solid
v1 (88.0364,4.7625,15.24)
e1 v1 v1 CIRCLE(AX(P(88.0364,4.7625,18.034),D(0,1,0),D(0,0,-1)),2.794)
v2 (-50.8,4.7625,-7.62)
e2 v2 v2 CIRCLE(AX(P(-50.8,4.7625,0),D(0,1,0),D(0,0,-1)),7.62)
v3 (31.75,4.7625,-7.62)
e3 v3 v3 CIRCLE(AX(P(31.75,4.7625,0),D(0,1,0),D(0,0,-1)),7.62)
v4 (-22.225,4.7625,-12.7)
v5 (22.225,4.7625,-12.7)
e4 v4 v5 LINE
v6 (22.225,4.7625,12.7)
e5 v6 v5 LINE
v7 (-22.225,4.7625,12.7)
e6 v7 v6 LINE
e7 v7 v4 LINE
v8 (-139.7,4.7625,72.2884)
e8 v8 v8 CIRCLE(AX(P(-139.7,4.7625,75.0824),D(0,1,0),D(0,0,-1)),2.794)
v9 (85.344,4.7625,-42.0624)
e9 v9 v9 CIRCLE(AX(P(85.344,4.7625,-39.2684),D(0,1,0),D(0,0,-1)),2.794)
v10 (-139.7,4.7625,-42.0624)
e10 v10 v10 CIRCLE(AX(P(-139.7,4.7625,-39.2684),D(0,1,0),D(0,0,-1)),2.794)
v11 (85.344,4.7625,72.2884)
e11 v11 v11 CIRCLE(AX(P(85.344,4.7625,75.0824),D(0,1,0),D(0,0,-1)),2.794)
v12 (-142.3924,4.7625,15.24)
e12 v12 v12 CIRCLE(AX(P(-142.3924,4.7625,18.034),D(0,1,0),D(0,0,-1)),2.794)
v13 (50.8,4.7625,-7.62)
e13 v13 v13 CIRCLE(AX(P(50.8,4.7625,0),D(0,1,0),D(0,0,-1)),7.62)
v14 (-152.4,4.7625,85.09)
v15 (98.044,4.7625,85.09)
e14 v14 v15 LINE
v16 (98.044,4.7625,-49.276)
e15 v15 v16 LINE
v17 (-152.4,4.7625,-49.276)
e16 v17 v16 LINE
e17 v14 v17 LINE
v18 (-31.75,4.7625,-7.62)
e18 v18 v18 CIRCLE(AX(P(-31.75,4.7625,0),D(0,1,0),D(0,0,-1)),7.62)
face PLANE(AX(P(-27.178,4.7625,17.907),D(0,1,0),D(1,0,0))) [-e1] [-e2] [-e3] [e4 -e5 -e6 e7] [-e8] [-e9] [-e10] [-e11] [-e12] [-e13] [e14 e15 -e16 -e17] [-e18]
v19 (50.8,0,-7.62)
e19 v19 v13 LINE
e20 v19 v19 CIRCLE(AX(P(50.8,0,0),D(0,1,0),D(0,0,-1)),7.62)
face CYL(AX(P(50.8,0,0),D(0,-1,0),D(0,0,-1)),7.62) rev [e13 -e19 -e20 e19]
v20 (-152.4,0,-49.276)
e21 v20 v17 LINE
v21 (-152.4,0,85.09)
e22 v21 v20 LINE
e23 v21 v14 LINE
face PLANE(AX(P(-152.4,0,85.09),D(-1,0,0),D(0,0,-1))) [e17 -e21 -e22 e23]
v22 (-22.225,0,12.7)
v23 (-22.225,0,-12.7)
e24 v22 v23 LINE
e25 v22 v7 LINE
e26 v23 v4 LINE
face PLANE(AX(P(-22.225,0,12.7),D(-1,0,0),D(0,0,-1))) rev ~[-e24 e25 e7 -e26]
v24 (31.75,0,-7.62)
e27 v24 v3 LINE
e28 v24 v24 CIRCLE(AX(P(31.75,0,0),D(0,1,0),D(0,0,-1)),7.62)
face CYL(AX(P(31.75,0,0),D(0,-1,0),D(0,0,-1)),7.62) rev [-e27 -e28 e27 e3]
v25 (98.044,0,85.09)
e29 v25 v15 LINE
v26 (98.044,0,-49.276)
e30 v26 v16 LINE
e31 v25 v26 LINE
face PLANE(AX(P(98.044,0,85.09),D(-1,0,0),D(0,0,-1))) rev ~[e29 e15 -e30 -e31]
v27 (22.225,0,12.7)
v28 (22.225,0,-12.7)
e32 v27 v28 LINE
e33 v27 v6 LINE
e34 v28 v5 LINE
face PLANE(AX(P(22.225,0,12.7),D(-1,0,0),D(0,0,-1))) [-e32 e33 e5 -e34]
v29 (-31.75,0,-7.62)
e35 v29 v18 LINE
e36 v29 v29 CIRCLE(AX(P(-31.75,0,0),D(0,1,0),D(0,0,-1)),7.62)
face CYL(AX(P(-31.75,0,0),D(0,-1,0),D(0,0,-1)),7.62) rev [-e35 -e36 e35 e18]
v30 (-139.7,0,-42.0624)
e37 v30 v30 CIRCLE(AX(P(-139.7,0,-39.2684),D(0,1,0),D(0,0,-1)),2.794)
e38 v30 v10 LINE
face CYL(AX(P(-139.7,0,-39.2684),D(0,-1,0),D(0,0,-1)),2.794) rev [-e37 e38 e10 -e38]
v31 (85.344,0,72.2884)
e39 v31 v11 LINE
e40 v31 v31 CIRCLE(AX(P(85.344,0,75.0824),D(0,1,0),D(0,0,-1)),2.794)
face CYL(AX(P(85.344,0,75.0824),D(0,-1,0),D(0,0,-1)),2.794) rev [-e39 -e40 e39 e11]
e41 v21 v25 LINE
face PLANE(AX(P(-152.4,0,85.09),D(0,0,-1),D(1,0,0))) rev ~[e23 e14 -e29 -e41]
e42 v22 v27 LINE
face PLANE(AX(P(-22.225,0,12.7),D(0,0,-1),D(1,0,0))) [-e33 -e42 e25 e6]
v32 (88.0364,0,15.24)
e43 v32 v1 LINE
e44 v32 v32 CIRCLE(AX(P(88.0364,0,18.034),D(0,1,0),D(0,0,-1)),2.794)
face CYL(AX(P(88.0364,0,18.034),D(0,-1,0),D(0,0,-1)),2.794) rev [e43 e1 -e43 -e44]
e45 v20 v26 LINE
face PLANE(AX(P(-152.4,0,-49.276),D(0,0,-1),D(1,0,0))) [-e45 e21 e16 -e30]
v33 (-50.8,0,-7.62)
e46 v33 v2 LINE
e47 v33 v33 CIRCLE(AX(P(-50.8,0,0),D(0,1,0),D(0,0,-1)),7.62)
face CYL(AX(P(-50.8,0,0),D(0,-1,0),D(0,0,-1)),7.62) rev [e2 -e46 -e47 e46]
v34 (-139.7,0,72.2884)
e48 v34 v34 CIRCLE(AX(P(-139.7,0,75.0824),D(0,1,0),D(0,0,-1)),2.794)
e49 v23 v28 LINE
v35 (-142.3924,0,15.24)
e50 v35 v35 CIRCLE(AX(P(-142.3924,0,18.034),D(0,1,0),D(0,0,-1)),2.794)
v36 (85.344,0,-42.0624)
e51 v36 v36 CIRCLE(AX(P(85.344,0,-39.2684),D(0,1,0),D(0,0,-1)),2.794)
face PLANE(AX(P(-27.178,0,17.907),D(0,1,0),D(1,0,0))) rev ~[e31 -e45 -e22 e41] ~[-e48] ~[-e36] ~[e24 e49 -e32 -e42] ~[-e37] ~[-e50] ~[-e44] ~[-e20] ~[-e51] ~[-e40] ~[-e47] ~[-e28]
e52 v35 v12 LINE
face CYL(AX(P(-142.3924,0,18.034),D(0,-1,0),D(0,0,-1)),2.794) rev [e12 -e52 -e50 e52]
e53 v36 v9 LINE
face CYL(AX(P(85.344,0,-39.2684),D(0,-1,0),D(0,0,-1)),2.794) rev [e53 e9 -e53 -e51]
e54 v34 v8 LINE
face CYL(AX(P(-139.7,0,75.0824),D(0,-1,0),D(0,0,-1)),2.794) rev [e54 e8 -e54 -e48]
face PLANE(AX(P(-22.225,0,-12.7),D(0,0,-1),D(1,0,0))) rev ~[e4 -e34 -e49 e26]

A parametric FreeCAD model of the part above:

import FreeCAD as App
import Part
import Sketcher

V = App.Vector
Q = App.Units.Quantity


def add_polygon(sketch, points):
    """Adds a closed chain of lines whose ends are joined by coincident constraints."""
    first, n = sketch.GeometryCount, len(points)
    for a, b in zip(points, points[1:] + points[:1]):
        sketch.addGeometry(Part.LineSegment(App.Vector(*a, 0), App.Vector(*b, 0)), False)
    for i in range(n):
        sketch.addConstraint(Sketcher.Constraint("Coincident", first + i, 2, first + (i + 1) % n, 1))

doc = App.newDocument("Part")
body = doc.addObject("PartDesign::Body", "Body")

# Sketch on XZ plane
sketch1 = body.newObject("Sketcher::SketchObject", "Sketch")
sketch1.AttachmentSupport = (doc.getObject("XZ_Plane"), [""])
sketch1.MapMode = "FlatFace"
add_polygon(sketch1, [(-152.4, -49.3), (-152.4, 85.1), (98, 85.1), (98, -49.3)])  # lines 0-3
sketch1.addGeometry(Part.Circle(V(-139.7, 75.1, 0), V(0, 0, 1), 2.8), False)  # 4
sketch1.addGeometry(Part.Circle(V(-142.4, 18, 0), V(0, 0, 1), 2.8), False)  # 5
sketch1.addGeometry(Part.Circle(V(85.3, 75.1, 0), V(0, 0, 1), 2.8), False)  # 6
sketch1.addGeometry(Part.Circle(V(88, 18, 0), V(0, 0, 1), 2.8), False)  # 7
sketch1.addGeometry(Part.Circle(V(-50.8, 0, 0), V(0, 0, 1), 7.6), False)  # 8
sketch1.addGeometry(Part.Circle(V(-31.8, 0, 0), V(0, 0, 1), 7.6), False)  # 9
sketch1.addGeometry(Part.Circle(V(-139.7, -39.3, 0), V(0, 0, 1), 2.8), False)  # 10
add_polygon(sketch1, [(22.2, 12.7), (-22.2, 12.7), (-22.2, -12.7), (22.2, -12.7)])  # lines 11-14
sketch1.addGeometry(Part.Circle(V(31.8, 0, 0), V(0, 0, 1), 7.6), False)  # 15
sketch1.addGeometry(Part.Circle(V(50.8, 0, 0), V(0, 0, 1), 7.6), False)  # 16
sketch1.addGeometry(Part.Circle(V(85.3, -39.3, 0), V(0, 0, 1), 2.8), False)  # 17
sketch1.addConstraint(Sketcher.Constraint("Vertical", 0))
sketch1.addConstraint(Sketcher.Constraint("Horizontal", 1))
sketch1.addConstraint(Sketcher.Constraint("Vertical", 2))
sketch1.addConstraint(Sketcher.Constraint("Horizontal", 3))
sketch1.addConstraint(Sketcher.Constraint("Horizontal", 11))
sketch1.addConstraint(Sketcher.Constraint("Vertical", 12))
sketch1.addConstraint(Sketcher.Constraint("Horizontal", 13))
sketch1.addConstraint(Sketcher.Constraint("Vertical", 14))
sketch1.addConstraint(Sketcher.Constraint("Equal", 4, 5))
sketch1.addConstraint(Sketcher.Constraint("Equal", 5, 6))
sketch1.addConstraint(Sketcher.Constraint("Equal", 6, 7))
sketch1.addConstraint(Sketcher.Constraint("Equal", 8, 9))
sketch1.addConstraint(Sketcher.Constraint("Equal", 7, 10))
sketch1.addConstraint(Sketcher.Constraint("Equal", 9, 15))
sketch1.addConstraint(Sketcher.Constraint("Equal", 15, 16))
sketch1.addConstraint(Sketcher.Constraint("Equal", 10, 17))
sketch1.addConstraint(Sketcher.Constraint("Symmetric", 9, 3, 15, 3, -1, 1))
sketch1.addConstraint(Sketcher.Constraint("Symmetric", 8, 3, 16, 3, -1, 1))
sketch1.addConstraint(Sketcher.Constraint("Symmetric", 11, 2, 13, 2, -1, 1))
sketch1.addConstraint(Sketcher.Constraint("PointOnObject", 8, 3, -1))
sketch1.addConstraint(Sketcher.Constraint("PointOnObject", 9, 3, -1))
sketch1.addConstraint(Sketcher.Constraint("Horizontal", 4, 3, 6, 3))
sketch1.addConstraint(Sketcher.Constraint("Horizontal", 5, 3, 7, 3))
sketch1.addConstraint(Sketcher.Constraint("Horizontal", 10, 3, 17, 3))
sketch1.addConstraint(Sketcher.Constraint("Vertical", 4, 3, 10, 3))
sketch1.addConstraint(Sketcher.Constraint("Vertical", 6, 3, 17, 3))
sketch1.addConstraint(Sketcher.Constraint("Diameter", 8, Q("0.6 in")))
sketch1.addConstraint(Sketcher.Constraint("Diameter", 4, Q("0.22 in")))
sketch1.addConstraint(Sketcher.Constraint("DistanceY", 12, 2, 12, 1, Q("1 in")))
sketch1.addConstraint(Sketcher.Constraint("DistanceX", 8, 3, -1, 1, Q("2 in")))
sketch1.addConstraint(Sketcher.Constraint("DistanceX", 0, 2, -1, 1, Q("6 in")))
sketch1.addConstraint(Sketcher.Constraint("DistanceX", 1, 1, 1, 2, Q("9.86 in")))
sketch1.addConstraint(Sketcher.Constraint("DistanceX", 11, 2, 11, 1, Q("1.75 in")))
sketch1.addConstraint(Sketcher.Constraint("DistanceY", 0, 1, 0, 2, Q("5.29 in")))
sketch1.addConstraint(Sketcher.Constraint("DistanceX", 4, 3, -1, 1, Q("5.5 in")))
sketch1.addConstraint(Sketcher.Constraint("DistanceX", 9, 3, 15, 3, Q("2.5 in")))
sketch1.addConstraint(Sketcher.Constraint("DistanceX", 6, 3, 1, 2, Q("0.5 in")))
sketch1.addConstraint(Sketcher.Constraint("DistanceY", -1, 1, 5, 3, Q("0.71 in")))
sketch1.addConstraint(Sketcher.Constraint("DistanceY", -1, 1, 0, 2, Q("3.35 in")))
sketch1.addConstraint(Sketcher.Constraint("DistanceY", -1, 1, 4, 3, Q("2.956 in")))
sketch1.addConstraint(Sketcher.Constraint("DistanceX", 5, 3, -1, 1, Q("5.606 in")))
sketch1.addConstraint(Sketcher.Constraint("DistanceX", -1, 1, 7, 3, Q("3.466 in")))
sketch1.addConstraint(Sketcher.Constraint("DistanceY", 10, 3, -1, 1, Q("1.546 in")))
pad1 = body.newObject("PartDesign::Pad", "Pad")
pad1.Profile = sketch1
pad1.Length = Q("0.1875 in")
pad1.Reversed = True

doc.recompute()
